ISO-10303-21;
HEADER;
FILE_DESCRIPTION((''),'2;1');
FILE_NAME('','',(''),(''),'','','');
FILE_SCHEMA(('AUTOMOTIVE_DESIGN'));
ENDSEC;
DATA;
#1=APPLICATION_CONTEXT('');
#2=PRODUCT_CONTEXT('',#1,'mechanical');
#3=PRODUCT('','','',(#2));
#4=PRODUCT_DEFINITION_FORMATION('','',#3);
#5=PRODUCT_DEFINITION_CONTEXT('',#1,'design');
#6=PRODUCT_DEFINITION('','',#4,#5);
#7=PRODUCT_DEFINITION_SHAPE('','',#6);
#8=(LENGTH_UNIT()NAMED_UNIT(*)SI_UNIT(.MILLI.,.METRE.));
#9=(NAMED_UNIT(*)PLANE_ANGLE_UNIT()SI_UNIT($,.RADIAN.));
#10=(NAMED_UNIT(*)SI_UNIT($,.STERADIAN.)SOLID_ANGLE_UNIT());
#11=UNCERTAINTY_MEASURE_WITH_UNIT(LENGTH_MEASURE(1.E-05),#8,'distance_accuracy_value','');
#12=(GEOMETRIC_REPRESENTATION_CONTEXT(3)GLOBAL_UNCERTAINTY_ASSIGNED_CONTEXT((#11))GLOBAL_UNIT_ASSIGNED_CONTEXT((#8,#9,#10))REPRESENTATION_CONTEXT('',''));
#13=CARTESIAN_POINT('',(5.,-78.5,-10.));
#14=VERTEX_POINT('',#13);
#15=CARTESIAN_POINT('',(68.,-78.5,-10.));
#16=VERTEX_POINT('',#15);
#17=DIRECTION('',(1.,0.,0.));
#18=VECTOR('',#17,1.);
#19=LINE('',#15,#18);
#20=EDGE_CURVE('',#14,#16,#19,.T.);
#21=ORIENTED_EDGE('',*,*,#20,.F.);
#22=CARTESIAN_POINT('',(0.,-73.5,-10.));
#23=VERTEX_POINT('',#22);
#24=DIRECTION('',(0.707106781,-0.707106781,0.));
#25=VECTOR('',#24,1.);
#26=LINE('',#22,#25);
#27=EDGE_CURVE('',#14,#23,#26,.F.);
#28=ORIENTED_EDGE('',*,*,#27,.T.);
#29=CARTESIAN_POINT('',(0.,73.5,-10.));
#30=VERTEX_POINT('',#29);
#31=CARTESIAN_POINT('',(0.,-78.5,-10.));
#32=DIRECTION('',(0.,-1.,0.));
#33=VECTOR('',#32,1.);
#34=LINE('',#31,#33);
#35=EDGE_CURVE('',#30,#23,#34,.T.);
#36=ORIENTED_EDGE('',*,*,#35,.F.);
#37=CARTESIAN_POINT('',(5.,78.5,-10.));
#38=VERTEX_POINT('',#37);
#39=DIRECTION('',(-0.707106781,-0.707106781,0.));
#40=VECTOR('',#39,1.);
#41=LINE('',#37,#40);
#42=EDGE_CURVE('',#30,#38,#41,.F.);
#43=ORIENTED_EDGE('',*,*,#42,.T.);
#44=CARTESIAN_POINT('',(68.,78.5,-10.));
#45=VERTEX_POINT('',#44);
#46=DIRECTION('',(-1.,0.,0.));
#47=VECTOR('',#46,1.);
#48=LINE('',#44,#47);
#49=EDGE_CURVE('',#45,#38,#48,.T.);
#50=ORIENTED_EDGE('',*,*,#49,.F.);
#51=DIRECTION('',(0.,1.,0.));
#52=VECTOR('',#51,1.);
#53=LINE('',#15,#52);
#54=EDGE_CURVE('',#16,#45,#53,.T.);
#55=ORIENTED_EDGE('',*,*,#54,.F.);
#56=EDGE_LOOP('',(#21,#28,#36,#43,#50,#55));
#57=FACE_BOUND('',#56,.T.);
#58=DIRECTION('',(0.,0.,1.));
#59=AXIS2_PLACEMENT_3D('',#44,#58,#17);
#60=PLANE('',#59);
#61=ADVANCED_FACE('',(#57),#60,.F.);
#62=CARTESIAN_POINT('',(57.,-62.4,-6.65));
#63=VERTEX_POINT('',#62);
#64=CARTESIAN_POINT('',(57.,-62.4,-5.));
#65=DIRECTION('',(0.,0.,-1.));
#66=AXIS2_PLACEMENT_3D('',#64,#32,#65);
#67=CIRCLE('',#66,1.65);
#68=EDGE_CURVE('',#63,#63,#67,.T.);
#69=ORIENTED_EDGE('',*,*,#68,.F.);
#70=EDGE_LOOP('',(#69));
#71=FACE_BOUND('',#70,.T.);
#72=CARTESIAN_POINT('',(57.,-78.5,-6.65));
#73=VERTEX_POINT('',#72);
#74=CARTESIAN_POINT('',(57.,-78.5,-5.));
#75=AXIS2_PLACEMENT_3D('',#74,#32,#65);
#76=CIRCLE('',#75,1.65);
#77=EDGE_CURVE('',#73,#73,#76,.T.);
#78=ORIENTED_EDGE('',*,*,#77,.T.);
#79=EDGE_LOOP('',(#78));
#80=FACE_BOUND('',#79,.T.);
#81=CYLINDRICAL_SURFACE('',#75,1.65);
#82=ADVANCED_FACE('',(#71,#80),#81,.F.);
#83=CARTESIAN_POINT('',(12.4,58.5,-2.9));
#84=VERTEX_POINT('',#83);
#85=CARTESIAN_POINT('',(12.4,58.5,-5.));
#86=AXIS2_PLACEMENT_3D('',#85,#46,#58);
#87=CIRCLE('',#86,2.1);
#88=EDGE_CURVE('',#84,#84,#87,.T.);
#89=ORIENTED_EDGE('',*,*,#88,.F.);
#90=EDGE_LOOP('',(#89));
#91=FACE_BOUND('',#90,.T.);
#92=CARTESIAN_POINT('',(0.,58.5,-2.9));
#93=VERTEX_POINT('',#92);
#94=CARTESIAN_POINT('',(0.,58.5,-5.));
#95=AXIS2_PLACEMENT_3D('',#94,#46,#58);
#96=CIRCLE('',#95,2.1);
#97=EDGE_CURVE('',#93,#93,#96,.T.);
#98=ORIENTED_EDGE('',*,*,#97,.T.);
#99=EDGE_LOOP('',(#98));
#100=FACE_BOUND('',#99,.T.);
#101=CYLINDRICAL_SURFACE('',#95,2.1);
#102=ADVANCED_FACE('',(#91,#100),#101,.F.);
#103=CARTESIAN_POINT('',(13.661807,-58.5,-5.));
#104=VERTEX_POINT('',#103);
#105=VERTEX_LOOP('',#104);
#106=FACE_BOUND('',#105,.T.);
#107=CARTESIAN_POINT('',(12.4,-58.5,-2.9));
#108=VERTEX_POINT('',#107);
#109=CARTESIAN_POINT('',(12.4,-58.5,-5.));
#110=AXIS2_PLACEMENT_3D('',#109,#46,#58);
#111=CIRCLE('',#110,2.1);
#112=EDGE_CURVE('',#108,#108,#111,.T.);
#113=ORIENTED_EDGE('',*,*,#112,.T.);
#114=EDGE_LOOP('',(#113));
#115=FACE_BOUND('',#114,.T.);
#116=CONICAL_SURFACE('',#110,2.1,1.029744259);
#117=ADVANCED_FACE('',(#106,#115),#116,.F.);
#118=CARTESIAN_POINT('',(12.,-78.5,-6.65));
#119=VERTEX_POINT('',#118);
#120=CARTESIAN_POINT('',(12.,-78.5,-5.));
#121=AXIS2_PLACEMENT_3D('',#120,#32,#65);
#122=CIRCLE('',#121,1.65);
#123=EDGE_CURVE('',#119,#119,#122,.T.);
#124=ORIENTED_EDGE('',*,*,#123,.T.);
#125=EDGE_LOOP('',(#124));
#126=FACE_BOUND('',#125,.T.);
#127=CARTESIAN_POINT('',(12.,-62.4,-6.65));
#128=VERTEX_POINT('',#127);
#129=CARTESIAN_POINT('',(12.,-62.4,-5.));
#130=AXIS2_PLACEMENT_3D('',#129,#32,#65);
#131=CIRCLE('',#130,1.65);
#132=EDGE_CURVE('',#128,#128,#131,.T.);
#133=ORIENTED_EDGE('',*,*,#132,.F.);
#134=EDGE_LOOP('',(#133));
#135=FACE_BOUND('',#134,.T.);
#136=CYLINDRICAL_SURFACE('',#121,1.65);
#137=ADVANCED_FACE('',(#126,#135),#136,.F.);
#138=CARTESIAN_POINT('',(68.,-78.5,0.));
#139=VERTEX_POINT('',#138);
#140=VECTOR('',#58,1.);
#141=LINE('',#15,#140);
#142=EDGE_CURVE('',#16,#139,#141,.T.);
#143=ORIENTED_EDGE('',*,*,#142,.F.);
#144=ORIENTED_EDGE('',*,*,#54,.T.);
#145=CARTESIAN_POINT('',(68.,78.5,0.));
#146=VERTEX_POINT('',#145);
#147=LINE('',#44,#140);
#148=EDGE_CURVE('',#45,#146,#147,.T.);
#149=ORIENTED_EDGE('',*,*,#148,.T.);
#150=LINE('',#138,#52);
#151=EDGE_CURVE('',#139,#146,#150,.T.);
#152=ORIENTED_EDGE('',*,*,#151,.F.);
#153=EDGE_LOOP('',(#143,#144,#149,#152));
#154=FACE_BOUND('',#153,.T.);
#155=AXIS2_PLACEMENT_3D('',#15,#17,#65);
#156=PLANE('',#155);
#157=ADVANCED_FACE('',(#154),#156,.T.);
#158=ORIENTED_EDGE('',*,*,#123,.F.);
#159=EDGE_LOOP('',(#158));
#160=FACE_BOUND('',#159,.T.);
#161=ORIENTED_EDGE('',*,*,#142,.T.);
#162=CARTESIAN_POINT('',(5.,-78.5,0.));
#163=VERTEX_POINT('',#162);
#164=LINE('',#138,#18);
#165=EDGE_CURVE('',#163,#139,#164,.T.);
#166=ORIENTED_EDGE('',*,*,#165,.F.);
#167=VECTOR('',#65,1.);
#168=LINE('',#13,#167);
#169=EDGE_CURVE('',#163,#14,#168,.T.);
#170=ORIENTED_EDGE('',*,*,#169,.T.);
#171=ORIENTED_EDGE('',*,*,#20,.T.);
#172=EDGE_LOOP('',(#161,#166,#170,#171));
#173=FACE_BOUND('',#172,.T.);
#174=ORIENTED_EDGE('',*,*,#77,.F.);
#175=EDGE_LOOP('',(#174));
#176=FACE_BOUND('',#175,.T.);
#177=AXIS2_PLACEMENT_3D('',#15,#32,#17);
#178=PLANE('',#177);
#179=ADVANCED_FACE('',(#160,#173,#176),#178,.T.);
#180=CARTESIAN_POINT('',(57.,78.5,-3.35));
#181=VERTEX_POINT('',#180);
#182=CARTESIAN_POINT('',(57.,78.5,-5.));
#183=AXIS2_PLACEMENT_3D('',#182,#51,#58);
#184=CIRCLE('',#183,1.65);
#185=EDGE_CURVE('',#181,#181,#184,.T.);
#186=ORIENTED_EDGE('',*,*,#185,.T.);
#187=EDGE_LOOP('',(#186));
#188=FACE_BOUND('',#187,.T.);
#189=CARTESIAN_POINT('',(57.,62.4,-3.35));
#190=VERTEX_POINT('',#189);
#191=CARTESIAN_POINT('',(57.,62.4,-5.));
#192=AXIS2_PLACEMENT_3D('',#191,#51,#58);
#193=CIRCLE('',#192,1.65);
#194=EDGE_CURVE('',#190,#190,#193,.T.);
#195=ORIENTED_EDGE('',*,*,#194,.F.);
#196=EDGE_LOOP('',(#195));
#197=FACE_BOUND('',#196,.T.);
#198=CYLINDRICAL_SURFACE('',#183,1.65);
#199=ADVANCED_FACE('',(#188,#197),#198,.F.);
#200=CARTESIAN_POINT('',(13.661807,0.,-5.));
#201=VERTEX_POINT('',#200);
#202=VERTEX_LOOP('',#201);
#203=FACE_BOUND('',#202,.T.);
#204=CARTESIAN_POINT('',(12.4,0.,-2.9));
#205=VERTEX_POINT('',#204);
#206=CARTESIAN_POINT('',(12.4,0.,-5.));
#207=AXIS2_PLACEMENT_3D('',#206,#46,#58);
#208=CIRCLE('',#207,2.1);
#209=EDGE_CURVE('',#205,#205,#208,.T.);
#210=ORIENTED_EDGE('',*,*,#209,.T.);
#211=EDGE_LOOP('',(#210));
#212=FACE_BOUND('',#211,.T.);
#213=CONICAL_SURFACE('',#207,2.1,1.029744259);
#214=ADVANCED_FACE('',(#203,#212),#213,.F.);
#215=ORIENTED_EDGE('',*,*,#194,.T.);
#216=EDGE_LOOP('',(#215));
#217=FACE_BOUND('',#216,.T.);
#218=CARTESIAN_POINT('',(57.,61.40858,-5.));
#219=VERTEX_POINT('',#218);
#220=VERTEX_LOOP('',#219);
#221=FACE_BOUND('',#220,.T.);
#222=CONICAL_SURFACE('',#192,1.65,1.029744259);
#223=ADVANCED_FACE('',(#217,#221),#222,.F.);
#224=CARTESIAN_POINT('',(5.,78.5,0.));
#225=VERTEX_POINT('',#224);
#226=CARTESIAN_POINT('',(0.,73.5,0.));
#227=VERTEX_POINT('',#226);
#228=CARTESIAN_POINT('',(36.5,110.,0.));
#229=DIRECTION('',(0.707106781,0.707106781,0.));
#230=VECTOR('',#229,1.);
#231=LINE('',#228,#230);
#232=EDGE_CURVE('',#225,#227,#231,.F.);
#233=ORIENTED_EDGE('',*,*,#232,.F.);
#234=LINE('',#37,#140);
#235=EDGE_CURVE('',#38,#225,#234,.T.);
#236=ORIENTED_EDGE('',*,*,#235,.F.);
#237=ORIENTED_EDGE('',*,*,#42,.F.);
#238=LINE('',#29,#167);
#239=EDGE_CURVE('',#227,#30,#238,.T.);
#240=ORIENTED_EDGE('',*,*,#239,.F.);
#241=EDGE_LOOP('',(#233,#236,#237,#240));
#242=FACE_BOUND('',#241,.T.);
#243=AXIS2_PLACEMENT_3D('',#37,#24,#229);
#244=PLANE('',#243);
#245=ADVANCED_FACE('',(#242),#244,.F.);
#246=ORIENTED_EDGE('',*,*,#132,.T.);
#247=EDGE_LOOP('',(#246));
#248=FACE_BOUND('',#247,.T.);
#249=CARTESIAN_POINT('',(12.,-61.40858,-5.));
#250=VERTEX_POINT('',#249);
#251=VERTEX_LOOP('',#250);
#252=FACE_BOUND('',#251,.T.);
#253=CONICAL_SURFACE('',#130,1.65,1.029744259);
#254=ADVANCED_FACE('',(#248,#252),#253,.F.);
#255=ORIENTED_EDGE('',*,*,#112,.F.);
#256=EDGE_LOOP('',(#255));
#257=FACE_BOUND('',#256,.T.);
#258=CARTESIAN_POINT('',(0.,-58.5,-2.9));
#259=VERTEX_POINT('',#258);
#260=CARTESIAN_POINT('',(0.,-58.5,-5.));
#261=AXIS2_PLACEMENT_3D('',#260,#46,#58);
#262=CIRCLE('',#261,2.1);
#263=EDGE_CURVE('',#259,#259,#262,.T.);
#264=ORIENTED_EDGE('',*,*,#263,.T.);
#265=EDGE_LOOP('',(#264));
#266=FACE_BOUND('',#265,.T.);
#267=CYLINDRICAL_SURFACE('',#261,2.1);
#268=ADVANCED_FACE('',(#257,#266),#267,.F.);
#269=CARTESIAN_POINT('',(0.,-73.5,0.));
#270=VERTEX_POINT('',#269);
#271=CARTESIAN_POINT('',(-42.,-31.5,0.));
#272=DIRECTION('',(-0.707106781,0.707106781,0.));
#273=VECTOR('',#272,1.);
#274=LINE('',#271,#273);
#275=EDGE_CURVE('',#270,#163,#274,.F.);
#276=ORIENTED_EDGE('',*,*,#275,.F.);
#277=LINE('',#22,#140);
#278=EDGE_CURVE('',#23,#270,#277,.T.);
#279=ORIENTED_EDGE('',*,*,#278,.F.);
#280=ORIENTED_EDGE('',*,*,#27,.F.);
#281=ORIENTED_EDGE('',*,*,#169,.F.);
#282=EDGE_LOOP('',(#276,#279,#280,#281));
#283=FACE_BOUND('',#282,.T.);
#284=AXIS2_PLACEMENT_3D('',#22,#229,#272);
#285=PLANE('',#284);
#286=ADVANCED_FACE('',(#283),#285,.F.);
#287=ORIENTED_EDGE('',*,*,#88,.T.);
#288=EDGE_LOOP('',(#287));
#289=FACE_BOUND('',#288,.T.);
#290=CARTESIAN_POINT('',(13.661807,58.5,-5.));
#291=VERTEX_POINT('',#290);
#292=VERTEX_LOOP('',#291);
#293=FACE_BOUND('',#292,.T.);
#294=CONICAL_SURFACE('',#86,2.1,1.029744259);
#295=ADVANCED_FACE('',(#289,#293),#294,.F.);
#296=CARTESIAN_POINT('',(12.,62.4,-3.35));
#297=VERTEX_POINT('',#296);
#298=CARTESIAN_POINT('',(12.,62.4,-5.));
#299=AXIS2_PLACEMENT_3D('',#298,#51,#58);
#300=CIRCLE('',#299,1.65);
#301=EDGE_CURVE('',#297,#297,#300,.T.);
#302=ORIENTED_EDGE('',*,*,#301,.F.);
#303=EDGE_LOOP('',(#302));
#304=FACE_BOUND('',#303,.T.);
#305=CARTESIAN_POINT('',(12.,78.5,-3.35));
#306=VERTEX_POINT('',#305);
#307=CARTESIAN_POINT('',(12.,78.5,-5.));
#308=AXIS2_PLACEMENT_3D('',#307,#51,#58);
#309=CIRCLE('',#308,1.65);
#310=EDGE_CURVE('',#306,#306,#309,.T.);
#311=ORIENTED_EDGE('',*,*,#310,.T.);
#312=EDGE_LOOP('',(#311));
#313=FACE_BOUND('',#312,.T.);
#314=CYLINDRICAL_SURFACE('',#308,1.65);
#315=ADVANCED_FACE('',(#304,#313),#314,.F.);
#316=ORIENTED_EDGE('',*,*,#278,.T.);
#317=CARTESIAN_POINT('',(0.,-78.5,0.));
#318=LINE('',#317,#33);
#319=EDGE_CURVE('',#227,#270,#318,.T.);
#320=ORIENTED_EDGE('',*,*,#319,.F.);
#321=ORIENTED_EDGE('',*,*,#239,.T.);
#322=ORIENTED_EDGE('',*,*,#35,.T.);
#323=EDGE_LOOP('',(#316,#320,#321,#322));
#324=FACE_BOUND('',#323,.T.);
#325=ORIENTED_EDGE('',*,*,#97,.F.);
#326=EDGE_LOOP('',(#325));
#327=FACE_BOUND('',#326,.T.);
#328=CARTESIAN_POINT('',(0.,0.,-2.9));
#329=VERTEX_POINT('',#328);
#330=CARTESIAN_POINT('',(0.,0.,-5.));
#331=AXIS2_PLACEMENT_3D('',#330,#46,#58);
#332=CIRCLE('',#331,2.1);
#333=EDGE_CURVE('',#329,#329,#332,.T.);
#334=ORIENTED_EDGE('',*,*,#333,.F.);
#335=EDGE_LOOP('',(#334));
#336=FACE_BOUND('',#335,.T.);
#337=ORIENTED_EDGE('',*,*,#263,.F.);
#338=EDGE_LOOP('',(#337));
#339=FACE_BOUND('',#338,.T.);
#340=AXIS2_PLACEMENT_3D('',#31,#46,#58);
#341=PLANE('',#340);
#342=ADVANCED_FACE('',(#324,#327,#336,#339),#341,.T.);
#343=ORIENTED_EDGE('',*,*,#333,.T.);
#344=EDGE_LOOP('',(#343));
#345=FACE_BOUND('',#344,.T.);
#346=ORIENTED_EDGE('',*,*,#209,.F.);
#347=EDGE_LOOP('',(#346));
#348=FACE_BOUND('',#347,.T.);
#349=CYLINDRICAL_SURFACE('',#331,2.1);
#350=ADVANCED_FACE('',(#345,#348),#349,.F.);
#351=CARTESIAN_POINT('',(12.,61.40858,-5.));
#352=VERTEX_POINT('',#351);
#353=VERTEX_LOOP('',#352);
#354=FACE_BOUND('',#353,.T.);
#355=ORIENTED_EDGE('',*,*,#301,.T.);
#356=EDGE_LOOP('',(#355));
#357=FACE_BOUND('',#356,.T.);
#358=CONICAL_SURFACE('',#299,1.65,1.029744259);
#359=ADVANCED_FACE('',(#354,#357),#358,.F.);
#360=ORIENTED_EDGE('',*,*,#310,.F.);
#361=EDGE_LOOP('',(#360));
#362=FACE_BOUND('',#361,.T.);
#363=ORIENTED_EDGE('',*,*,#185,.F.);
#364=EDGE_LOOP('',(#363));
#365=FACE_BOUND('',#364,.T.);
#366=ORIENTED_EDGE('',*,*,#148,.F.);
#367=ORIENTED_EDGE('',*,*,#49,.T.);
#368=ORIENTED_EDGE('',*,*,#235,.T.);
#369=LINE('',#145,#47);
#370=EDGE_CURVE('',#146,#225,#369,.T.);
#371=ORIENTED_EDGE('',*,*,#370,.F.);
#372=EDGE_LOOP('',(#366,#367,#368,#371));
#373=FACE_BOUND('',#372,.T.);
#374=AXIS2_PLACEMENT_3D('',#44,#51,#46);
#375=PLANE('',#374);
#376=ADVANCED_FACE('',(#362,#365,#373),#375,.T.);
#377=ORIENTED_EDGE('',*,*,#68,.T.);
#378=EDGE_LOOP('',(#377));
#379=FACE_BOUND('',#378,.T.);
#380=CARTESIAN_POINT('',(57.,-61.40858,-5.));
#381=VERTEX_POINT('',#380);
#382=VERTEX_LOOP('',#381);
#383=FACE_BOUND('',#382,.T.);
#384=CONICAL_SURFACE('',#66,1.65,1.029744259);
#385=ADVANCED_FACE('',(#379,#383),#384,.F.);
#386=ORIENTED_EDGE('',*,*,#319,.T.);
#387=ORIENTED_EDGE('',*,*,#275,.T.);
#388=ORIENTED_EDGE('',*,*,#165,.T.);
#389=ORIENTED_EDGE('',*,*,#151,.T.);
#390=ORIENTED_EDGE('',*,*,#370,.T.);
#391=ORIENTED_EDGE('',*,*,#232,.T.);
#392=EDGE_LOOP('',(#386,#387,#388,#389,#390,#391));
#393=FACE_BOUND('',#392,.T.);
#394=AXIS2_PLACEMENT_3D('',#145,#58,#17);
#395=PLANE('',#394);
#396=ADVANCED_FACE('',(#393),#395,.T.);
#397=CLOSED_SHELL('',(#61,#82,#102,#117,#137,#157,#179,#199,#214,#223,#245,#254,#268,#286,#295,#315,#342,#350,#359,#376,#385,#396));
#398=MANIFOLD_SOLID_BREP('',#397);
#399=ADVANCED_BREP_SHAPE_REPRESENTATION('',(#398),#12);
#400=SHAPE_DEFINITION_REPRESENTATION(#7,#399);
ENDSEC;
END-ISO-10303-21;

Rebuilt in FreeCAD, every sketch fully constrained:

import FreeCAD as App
import Part
import Sketcher
from FreeCAD import Vector
Q = App.Units.Quantity


def edges_at(feature, points):
    """Names of the edges that pass closest to the given points."""
    edges = feature.Shape.Edges
    near = lambda p: min(range(len(edges)), key=lambda i: edges[i].distToShape(Part.Vertex(*p))[0])
    return sorted({f"Edge{near(p) + 1}" for p in points})

doc = App.newDocument("Part")
body = doc.addObject("PartDesign::Body", "Body")

# Sketch on XY plane
sketch1 = doc.addObject("Sketcher::SketchObject", "Sketch")
body.addObject(sketch1)
sketch1.AttachmentSupport = (doc.XY_Plane, [""])
sketch1.MapMode = "FlatFace"
sketch1.addGeometry([
    Part.LineSegment(Vector(0, 78, 0), Vector(0, -78, 0)),
    Part.LineSegment(Vector(0, -78, 0), Vector(68, -78, 0)),
    Part.LineSegment(Vector(68, -78, 0), Vector(68, 78, 0)),
    Part.LineSegment(Vector(68, 78, 0), Vector(0, 78, 0)),
], False)
sketch1.addConstraint([
    Sketcher.Constraint("Coincident", 0, 2, 1, 1),
    Sketcher.Constraint("Coincident", 1, 2, 2, 1),
    Sketcher.Constraint("Coincident", 2, 2, 3, 1),
    Sketcher.Constraint("Coincident", 3, 2, 0, 1),
    Sketcher.Constraint("Vertical", 0),
    Sketcher.Constraint("Horizontal", 1),
    Sketcher.Constraint("Vertical", 2),
    Sketcher.Constraint("Horizontal", 3),
    Sketcher.Constraint("Symmetric", 0, 2, 3, 2, -1, 1),
    Sketcher.Constraint("DistanceX", 1, 1, 1, 2, Q("68 mm")),
    Sketcher.Constraint("DistanceY", 0, 2, 0, 1, Q("157 mm")),
])
pad1 = doc.addObject("PartDesign::Pad", "Pad")
body.addObject(pad1)
pad1.Profile = sketch1
pad1.Length = 10
pad1.Reversed = True

# Sketch on YZ plane
sketch2 = doc.addObject("Sketcher::SketchObject", "Sketch001")
body.addObject(sketch2)
sketch2.AttachmentSupport = (doc.YZ_Plane, [""])
sketch2.MapMode = "FlatFace"
sketch2.addGeometry([
    Part.Circle(Vector(58.5, -5, 0), Vector(0, 0, 1), 2.1),
    Part.Circle(Vector(0, -5, 0), Vector(0, 0, 1), 2.1),
    Part.Circle(Vector(-58.5, -5, 0), Vector(0, 0, 1), 2.1),
], False)
sketch2.addConstraint([
    Sketcher.Constraint("Equal", 0, 1),
    Sketcher.Constraint("Equal", 1, 2),
    Sketcher.Constraint("Symmetric", 0, 3, 2, 3, -2),
    Sketcher.Constraint("PointOnObject", 1, 3, -2),
    Sketcher.Constraint("Horizontal", 0, 3, 1, 3),
    Sketcher.Constraint("Diameter", 0, Q("4.2 mm")),
    Sketcher.Constraint("DistanceY", 0, 3, -1, 1, Q("5 mm")),
    Sketcher.Constraint("DistanceX", 2, 3, 0, 3, Q("117 mm")),
])
doc.recompute()
hole = doc.addObject("PartDesign::Hole", "Hole")
body.addObject(hole)
hole.Profile = sketch2
hole.ThreadType = "None"
hole.Diameter = 4.2
hole.DepthType = "Dimension"
hole.Depth = 12.4
hole.DrillPoint = "Angled"
hole.DrillPointAngle = 118
hole.Reversed = True

# Sketch on YZ plane
sketch3 = doc.addObject("Sketcher::SketchObject", "Sketch002")
body.addObject(sketch3)
sketch3.AttachmentSupport = (doc.YZ_Plane, [""])
sketch3.MapMode = "FlatFace"
sketch3.AttachmentOffset = App.Placement(Vector(0, 0, 12), App.Rotation())
sketch3.addGeometry([
    Part.LineSegment(Vector(61.4, -5, 0), Vector(78.5, -5, 0)),
    Part.LineSegment(Vector(78.5, -5, 0), Vector(78.5, -3.4, 0)),
    Part.LineSegment(Vector(78.5, -3.4, 0), Vector(62.4, -3.4, 0)),
    Part.LineSegment(Vector(62.4, -3.4, 0), Vector(61.4, -5, 0)),
], False)
sketch3.addGeometry(Part.LineSegment(Vector(78.5, -5, 0), Vector(61.4, -5, 0)), True)  # axis
sketch3.addConstraint([
    Sketcher.Constraint("Coincident", 0, 2, 1, 1),
    Sketcher.Constraint("Coincident", 1, 2, 2, 1),
    Sketcher.Constraint("Coincident", 2, 2, 3, 1),
    Sketcher.Constraint("Coincident", 3, 2, 0, 1),
    Sketcher.Constraint("Horizontal", 0),
    Sketcher.Constraint("Vertical", 1),
    Sketcher.Constraint("Horizontal", 2),
    Sketcher.Constraint("Horizontal", 4),
    Sketcher.Constraint("Coincident", 4, 1, 0, 2),
    Sketcher.Constraint("Equal", 0, 4),
    Sketcher.Constraint("Angle", 3, Q("-121 deg")),
    Sketcher.Constraint("DistanceX", 2, 2, 2, 1, Q("16.1 mm")),
    Sketcher.Constraint("DistanceY", 0, 2, -1, 1, Q("5 mm")),
    Sketcher.Constraint("DistanceY", 1, 1, 1, 2, Q("1.65 mm")),
    Sketcher.Constraint("DistanceX", -1, 1, 0, 2, Q("78.5 mm")),
])
groove = doc.addObject("PartDesign::Groove", "Groove")
body.addObject(groove)
groove.Profile = sketch3
groove.ReferenceAxis = (sketch3, ["Axis0"])
groove.Angle = 360
doc.recompute()

linearpattern = doc.addObject("PartDesign::LinearPattern", "LinearPattern")
body.addObject(linearpattern)
linearpattern.Originals = [groove]
linearpattern.Direction = (doc.X_Axis, [""])
linearpattern.Mode = "offset"
linearpattern.Offset = 45
linearpattern.Occurrences = 2
body.Tip = linearpattern
doc.recompute()

mirrored = doc.addObject("PartDesign::Mirrored", "Mirrored")
body.addObject(mirrored)
mirrored.Originals = [groove]
mirrored.MirrorPlane = (doc.XZ_Plane, [""])
body.Tip = mirrored

# Sketch on YZ plane
sketch4 = doc.addObject("Sketcher::SketchObject", "Sketch003")
body.addObject(sketch4)
sketch4.AttachmentSupport = (doc.YZ_Plane, [""])
sketch4.MapMode = "FlatFace"
sketch4.AttachmentOffset = App.Placement(Vector(0, 0, 57), App.Rotation())
sketch4.addGeometry([
    Part.LineSegment(Vector(-78.5, -5, 0), Vector(-61.4, -5, 0)),
    Part.LineSegment(Vector(-61.4, -5, 0), Vector(-62.4, -3.4, 0)),
    Part.LineSegment(Vector(-62.4, -3.4, 0), Vector(-78.5, -3.4, 0)),
    Part.LineSegment(Vector(-78.5, -3.4, 0), Vector(-78.5, -5, 0)),
], False)
sketch4.addGeometry(Part.LineSegment(Vector(-61.4, -5, 0), Vector(-78.5, -5, 0)), True)  # axis
sketch4.addConstraint([
    Sketcher.Constraint("Coincident", 0, 2, 1, 1),
    Sketcher.Constraint("Coincident", 1, 2, 2, 1),
    Sketcher.Constraint("Coincident", 2, 2, 3, 1),
    Sketcher.Constraint("Coincident", 3, 2, 0, 1),
    Sketcher.Constraint("Horizontal", 0),
    Sketcher.Constraint("Horizontal", 2),
    Sketcher.Constraint("Vertical", 3),
    Sketcher.Constraint("Horizontal", 4),
    Sketcher.Constraint("Coincident", 4, 1, 0, 2),
    Sketcher.Constraint("Vertical", 2, 2, 4, 2),
    Sketcher.Constraint("Angle", 1, Q("121 deg")),
    Sketcher.Constraint("DistanceX", 2, 2, 2, 1, Q("16.1 mm")),
    Sketcher.Constraint("DistanceY", 0, 2, -1, 1, Q("5 mm")),
    Sketcher.Constraint("DistanceY", 3, 2, 3, 1, Q("1.65 mm")),
    Sketcher.Constraint("DistanceX", 1, 2, -1, 1, Q("62.4 mm")),
])
groove2 = doc.addObject("PartDesign::Groove", "Groove001")
body.addObject(groove2)
groove2.Profile = sketch4
groove2.ReferenceAxis = (sketch4, ["Axis0"])
groove2.Angle = 360
doc.recompute()

chamfer = doc.addObject("PartDesign::Chamfer", "Chamfer")
body.addObject(chamfer)
chamfer.Base = (groove2, edges_at(groove2, [(0, -78.5, -5), (0, 78.5, -5)]))
chamfer.Size = 5

doc.recompute()
